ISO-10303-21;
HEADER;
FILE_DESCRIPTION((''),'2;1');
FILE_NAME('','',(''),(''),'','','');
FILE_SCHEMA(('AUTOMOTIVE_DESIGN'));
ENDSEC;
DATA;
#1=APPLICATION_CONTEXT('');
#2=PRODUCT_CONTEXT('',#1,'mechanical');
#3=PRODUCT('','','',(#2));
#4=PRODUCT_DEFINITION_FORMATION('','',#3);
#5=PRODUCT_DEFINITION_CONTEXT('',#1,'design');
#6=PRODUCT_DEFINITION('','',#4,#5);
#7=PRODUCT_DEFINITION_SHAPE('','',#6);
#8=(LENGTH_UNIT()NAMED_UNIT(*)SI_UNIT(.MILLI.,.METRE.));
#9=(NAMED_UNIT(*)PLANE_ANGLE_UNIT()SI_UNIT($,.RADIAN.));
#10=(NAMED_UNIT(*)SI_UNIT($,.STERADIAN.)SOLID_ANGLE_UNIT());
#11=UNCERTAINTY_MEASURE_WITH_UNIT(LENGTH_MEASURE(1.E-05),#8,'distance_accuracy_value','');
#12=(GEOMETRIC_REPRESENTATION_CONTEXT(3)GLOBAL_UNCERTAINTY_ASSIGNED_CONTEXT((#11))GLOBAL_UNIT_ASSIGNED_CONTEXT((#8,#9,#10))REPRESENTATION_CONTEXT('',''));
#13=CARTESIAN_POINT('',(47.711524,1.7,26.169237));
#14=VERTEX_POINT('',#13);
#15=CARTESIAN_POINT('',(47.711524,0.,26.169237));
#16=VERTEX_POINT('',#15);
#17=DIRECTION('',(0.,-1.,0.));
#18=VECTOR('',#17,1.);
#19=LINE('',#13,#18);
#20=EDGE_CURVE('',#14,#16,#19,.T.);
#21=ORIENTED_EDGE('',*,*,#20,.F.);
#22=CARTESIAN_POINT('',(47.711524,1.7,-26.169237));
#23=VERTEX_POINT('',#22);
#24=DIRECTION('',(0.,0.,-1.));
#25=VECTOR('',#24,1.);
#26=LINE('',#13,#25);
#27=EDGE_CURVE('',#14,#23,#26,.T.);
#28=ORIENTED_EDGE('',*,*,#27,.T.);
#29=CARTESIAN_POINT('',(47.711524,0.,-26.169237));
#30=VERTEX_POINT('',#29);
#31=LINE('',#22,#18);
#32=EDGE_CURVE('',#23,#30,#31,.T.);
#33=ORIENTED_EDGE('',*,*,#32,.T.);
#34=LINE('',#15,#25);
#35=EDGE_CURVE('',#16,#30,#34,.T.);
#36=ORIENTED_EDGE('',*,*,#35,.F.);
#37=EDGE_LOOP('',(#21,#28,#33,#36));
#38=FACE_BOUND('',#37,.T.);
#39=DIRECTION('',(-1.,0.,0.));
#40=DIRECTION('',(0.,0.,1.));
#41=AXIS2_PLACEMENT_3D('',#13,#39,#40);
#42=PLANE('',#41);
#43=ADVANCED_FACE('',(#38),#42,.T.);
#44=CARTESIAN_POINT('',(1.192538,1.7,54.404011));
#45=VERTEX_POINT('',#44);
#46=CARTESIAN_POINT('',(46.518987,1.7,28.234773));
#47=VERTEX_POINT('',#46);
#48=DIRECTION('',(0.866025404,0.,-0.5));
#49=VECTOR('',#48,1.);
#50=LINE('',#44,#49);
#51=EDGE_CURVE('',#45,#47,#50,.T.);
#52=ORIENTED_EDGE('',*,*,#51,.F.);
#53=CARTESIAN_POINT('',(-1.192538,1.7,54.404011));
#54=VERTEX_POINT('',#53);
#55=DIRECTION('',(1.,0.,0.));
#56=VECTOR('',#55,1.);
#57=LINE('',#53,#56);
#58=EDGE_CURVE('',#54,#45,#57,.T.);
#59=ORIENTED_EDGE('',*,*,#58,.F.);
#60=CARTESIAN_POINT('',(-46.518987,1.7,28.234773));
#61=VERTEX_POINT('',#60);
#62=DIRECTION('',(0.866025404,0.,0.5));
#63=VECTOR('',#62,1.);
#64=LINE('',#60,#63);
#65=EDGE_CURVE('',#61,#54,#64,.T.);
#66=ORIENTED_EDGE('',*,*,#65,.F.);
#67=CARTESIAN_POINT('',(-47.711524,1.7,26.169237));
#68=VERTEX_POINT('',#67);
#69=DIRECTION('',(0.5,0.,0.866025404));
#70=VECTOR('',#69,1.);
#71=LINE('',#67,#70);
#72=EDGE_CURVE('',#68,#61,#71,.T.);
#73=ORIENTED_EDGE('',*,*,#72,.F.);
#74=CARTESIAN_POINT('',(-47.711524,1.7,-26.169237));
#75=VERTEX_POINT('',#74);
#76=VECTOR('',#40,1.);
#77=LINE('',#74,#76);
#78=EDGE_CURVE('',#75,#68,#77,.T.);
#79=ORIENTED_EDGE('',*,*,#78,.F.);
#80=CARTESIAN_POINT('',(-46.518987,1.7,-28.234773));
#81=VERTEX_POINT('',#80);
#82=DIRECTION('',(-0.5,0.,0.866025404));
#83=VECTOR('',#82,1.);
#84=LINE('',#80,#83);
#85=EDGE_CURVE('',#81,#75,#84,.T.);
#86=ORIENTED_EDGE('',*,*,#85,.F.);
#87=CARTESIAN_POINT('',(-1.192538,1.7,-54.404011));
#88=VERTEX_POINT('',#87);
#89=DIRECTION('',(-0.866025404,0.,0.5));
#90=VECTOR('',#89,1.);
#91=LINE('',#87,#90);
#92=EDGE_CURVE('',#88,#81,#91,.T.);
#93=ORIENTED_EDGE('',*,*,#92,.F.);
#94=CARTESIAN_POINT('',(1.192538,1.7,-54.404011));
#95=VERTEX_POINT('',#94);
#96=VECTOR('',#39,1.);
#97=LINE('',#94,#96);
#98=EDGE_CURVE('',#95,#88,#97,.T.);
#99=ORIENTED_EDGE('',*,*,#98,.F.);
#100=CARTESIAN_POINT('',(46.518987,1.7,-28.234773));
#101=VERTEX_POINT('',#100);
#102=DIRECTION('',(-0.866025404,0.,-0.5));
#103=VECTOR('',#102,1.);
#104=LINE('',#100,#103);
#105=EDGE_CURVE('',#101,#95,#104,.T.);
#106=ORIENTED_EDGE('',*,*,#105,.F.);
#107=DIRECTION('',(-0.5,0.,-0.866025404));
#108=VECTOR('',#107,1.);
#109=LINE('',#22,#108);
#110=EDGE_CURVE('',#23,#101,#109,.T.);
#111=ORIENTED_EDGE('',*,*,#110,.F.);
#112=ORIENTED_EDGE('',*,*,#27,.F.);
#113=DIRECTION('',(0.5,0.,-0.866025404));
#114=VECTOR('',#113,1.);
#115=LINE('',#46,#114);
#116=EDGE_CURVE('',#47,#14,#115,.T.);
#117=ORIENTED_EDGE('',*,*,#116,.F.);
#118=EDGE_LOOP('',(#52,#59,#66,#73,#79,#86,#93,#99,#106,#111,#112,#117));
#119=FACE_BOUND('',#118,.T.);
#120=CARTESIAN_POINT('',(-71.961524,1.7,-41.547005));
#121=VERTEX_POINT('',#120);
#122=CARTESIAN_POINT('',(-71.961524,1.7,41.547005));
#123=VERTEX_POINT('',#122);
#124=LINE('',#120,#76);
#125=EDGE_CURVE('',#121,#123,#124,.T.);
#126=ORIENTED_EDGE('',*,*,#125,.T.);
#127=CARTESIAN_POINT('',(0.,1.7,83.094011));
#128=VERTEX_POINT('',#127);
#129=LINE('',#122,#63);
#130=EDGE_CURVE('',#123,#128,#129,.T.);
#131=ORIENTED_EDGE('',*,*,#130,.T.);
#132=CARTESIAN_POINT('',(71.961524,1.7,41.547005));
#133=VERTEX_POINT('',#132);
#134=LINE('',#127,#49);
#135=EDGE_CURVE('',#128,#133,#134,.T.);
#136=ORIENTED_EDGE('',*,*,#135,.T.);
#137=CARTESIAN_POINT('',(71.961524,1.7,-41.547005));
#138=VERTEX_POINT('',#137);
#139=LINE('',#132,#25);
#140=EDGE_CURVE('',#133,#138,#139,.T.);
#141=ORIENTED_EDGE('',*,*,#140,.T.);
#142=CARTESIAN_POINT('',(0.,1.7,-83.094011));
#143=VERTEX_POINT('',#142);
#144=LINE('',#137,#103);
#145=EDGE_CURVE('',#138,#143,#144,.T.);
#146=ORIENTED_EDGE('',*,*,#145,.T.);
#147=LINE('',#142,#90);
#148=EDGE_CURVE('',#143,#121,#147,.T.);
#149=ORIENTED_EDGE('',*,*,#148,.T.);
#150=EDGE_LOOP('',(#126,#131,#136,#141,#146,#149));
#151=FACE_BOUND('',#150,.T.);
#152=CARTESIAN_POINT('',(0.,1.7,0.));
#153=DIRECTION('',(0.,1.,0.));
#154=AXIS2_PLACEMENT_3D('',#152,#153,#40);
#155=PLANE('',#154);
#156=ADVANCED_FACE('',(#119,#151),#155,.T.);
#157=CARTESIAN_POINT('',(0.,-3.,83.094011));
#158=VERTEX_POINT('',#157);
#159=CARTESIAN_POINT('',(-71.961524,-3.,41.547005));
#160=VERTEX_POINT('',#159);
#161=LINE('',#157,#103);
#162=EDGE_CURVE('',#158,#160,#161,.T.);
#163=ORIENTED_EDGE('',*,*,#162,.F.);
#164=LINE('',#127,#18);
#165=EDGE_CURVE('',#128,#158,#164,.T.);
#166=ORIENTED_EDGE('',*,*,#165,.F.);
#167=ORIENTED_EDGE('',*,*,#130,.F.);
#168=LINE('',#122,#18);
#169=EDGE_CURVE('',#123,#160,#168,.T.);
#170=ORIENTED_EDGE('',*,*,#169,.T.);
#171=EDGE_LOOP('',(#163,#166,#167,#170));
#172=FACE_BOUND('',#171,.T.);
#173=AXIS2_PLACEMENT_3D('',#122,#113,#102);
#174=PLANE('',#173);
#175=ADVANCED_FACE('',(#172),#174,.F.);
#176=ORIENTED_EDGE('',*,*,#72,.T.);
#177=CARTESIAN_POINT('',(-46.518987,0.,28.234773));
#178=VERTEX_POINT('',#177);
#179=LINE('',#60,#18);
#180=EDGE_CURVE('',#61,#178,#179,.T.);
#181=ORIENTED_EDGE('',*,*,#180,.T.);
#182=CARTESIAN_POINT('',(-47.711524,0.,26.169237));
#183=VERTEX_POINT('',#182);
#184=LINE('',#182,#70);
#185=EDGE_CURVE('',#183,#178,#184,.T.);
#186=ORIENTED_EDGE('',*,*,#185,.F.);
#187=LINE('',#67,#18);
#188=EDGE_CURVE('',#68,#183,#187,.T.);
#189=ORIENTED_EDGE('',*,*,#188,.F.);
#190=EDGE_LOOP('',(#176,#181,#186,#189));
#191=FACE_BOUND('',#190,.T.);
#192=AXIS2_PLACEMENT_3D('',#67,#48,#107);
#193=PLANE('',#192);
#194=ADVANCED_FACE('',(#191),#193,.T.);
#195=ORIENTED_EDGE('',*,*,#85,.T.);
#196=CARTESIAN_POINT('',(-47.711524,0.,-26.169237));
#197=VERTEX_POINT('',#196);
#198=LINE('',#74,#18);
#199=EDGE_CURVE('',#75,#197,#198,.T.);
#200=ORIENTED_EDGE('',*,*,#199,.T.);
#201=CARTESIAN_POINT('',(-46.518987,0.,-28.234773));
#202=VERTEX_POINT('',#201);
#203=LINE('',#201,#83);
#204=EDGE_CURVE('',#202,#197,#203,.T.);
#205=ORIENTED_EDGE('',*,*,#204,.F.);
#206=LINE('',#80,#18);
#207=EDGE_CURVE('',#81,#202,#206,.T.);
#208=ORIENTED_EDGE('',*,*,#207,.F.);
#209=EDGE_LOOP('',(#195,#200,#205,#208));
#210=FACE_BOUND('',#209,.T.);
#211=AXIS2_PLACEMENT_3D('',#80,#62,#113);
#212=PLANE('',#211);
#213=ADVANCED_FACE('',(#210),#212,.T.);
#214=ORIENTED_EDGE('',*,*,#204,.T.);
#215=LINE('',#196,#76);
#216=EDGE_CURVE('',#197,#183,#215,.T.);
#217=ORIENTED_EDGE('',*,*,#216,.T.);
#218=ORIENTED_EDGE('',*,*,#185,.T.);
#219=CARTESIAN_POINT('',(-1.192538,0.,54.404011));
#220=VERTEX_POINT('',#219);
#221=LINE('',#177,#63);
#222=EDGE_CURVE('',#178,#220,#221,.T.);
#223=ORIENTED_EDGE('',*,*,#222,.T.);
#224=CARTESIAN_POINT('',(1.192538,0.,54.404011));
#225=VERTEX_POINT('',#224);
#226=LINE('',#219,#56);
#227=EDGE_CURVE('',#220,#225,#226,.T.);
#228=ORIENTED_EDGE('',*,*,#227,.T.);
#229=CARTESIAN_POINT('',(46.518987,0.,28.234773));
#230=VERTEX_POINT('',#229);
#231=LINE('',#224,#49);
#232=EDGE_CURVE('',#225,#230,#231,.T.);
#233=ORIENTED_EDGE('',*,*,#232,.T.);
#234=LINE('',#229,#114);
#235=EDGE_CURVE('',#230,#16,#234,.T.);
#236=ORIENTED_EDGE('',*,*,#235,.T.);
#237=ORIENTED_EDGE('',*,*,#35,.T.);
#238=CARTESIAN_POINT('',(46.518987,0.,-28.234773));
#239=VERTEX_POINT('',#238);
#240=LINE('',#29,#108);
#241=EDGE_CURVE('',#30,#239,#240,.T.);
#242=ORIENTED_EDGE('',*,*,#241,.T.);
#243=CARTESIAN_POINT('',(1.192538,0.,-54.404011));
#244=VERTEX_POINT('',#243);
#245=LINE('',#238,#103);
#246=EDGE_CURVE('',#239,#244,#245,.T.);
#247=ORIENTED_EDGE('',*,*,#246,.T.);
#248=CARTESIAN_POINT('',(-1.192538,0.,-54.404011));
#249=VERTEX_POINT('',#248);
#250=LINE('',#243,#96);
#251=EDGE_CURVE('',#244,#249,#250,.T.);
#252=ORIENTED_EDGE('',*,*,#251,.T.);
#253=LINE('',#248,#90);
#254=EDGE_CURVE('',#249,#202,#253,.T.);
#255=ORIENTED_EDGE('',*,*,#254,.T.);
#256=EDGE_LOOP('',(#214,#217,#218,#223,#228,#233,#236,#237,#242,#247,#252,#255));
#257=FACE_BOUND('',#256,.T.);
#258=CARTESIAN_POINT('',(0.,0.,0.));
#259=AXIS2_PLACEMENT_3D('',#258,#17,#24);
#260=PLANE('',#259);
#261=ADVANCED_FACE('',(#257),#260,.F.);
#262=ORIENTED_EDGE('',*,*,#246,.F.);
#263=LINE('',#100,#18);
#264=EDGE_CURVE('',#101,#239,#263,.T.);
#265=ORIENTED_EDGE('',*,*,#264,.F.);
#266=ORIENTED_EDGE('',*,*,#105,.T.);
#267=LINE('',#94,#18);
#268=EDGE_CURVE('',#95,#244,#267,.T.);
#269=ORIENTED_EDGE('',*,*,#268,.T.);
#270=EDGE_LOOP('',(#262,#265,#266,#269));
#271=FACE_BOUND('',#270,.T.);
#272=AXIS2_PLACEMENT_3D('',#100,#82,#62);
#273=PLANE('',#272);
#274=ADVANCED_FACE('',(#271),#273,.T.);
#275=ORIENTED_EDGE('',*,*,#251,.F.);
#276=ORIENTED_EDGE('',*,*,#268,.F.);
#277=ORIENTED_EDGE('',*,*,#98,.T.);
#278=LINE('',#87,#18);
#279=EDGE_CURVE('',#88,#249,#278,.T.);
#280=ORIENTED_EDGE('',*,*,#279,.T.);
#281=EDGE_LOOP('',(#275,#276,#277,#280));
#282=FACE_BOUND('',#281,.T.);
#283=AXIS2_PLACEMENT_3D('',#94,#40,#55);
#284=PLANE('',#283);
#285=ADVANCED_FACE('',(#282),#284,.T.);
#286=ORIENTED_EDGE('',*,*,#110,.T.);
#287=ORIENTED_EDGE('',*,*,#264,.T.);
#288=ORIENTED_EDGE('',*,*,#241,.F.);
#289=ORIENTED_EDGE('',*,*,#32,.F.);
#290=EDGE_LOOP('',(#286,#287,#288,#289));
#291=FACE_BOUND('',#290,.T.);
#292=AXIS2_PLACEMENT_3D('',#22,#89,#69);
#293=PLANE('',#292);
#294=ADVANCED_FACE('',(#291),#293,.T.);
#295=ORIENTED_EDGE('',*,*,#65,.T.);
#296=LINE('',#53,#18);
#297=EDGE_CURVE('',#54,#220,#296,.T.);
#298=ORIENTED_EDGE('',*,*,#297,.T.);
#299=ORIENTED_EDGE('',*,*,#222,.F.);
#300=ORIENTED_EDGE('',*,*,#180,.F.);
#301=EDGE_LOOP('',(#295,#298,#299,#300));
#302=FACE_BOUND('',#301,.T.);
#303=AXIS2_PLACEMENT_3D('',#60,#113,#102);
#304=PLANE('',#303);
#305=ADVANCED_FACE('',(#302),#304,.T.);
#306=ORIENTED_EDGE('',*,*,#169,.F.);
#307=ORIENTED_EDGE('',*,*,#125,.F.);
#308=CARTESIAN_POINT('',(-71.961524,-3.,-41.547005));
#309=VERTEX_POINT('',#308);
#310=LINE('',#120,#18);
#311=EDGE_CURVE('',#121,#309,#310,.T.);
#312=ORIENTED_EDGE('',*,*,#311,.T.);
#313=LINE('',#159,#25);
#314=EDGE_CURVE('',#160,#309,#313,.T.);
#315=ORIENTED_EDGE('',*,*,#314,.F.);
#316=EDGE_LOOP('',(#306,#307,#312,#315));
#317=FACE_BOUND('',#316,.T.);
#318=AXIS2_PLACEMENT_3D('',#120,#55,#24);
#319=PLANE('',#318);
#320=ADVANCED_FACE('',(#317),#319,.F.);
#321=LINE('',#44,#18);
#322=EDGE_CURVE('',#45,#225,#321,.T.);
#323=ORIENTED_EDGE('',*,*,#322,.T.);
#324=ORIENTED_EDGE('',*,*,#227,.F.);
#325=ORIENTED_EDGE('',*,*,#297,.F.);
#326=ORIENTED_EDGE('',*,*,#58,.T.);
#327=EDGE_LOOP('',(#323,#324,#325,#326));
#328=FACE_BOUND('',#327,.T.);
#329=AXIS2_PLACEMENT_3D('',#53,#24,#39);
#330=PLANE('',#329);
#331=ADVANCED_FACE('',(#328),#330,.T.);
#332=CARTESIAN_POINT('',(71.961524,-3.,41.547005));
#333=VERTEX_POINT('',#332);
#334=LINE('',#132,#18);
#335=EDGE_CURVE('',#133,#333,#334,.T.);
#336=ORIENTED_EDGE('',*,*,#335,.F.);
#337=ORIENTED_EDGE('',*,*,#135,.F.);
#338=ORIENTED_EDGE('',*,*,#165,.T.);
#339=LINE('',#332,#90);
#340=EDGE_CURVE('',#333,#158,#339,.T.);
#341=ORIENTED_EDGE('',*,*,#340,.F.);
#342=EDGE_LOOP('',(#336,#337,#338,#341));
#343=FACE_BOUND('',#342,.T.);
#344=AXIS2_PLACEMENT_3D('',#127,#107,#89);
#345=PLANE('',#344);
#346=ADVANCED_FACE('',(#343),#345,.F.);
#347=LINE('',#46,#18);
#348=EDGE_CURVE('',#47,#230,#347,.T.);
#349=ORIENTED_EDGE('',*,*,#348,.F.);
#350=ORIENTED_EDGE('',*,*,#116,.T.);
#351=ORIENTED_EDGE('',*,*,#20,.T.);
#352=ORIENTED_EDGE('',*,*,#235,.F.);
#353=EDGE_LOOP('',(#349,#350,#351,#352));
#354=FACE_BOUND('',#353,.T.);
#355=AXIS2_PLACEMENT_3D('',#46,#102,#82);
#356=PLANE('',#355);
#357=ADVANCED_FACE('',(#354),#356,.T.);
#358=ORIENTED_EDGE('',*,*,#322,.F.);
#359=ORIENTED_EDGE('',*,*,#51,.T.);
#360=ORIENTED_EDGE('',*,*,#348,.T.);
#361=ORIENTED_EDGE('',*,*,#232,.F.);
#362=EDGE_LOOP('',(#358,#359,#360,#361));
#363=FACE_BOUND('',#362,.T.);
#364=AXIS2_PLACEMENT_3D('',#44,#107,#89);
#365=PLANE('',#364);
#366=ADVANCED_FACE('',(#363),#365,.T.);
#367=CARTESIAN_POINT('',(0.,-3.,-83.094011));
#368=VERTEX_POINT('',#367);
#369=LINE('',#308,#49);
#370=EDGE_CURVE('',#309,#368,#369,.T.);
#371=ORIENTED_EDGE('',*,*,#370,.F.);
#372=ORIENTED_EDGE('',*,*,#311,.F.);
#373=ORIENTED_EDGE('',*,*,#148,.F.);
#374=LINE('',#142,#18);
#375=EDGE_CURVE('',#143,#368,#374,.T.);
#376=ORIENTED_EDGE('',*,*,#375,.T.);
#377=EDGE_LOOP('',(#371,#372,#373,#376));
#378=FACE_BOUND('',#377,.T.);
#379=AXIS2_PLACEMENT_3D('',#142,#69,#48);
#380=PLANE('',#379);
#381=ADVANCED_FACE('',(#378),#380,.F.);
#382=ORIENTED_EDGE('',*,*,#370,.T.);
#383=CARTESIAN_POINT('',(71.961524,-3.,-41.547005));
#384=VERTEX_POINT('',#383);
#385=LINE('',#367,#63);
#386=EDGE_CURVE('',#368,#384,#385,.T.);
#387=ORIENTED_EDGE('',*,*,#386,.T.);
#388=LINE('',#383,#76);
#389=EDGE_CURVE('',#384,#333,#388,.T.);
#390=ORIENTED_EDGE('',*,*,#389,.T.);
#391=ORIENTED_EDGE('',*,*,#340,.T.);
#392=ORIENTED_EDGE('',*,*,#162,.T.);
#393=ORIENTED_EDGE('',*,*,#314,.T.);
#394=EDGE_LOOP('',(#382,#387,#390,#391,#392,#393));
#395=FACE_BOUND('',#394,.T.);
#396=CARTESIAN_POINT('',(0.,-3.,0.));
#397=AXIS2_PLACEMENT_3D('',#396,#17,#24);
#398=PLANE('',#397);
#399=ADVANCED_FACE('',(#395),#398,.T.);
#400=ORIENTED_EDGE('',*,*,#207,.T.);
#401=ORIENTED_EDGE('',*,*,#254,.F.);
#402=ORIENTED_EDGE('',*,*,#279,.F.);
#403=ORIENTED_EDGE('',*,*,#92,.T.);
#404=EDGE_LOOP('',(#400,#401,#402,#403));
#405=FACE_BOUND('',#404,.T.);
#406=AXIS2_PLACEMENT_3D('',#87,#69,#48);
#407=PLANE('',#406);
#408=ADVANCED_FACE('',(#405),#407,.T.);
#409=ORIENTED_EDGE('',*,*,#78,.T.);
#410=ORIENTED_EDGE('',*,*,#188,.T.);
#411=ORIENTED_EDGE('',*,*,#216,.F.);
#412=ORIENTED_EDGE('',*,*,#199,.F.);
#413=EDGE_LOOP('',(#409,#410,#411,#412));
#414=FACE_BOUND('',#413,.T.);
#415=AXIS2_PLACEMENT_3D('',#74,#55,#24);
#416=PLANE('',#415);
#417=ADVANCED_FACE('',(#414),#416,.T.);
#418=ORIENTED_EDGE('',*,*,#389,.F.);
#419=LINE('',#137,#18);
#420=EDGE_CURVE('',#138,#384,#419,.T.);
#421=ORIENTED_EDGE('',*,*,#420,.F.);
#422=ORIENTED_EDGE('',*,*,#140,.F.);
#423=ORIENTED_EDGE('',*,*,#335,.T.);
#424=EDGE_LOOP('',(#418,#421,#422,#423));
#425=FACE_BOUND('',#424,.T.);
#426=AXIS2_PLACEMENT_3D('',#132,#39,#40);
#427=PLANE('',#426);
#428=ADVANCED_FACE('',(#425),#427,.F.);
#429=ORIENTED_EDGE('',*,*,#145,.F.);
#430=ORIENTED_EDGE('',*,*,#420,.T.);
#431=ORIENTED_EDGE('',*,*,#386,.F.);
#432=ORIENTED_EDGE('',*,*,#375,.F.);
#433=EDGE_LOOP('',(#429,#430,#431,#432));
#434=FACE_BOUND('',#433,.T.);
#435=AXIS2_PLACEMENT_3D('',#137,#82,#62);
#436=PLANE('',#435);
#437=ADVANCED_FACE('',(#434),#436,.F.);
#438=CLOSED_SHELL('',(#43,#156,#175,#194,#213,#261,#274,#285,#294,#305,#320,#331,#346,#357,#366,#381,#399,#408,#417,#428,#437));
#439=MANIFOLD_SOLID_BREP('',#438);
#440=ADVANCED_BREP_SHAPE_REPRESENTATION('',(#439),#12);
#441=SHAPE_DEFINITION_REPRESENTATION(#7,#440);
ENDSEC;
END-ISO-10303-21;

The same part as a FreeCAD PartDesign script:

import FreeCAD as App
import Part
import Sketcher

V = App.Vector
Q = App.Units.Quantity


def add_polygon(sketch, points):
    """Adds a closed chain of lines whose ends are joined by coincident constraints."""
    first, n = sketch.GeometryCount, len(points)
    for a, b in zip(points, points[1:] + points[:1]):
        sketch.addGeometry(Part.LineSegment(App.Vector(*a, 0), App.Vector(*b, 0)), False)
    for i in range(n):
        sketch.addConstraint(Sketcher.Constraint("Coincident", first + i, 2, first + (i + 1) % n, 1))

doc = App.newDocument("Part")
body = doc.addObject("PartDesign::Body", "Body")

# Sketch on XZ plane
sketch1 = doc.addObject("Sketcher::SketchObject", "Sketch")
body.addObject(sketch1)
sketch1.AttachmentSupport = (doc.XZ_Plane, [""])
sketch1.MapMode = "FlatFace"
add_polygon(sketch1, [(0, 83.1), (72, 41.5), (72, -41.5), (0, -83.1), (-72, -41.5), (-72, 41.5)])  # lines 0-5
add_polygon(sketch1, [(-46.5, -28.2), (-1.2, -54.4), (1.2, -54.4), (46.5, -28.2), (47.7, -26.2), (47.7, 26.2), (46.5, 28.2), (1.2, 54.4), (-1.2, 54.4), (-46.5, 28.2), (-47.7, 26.2), (-47.7, -26.2)])  # lines 6-17
sketch1.addConstraint(Sketcher.Constraint("Vertical", 1))
sketch1.addConstraint(Sketcher.Constraint("Vertical", 4))
sketch1.addConstraint(Sketcher.Constraint("Horizontal", 7))
sketch1.addConstraint(Sketcher.Constraint("Vertical", 10))
sketch1.addConstraint(Sketcher.Constraint("Horizontal", 13))
sketch1.addConstraint(Sketcher.Constraint("Vertical", 16))
sketch1.addConstraint(Sketcher.Constraint("Symmetric", 0, 2, 3, 2, -1, 1))
sketch1.addConstraint(Sketcher.Constraint("Symmetric", 2, 2, 5, 2, -1, 1))
sketch1.addConstraint(Sketcher.Constraint("Symmetric", 6, 2, 12, 2, -1, 1))
sketch1.addConstraint(Sketcher.Constraint("Symmetric", 8, 2, 14, 2, -1, 1))
sketch1.addConstraint(Sketcher.Constraint("Symmetric", 9, 2, 15, 2, -1, 1))
sketch1.addConstraint(Sketcher.Constraint("Symmetric", 11, 2, 17, 2, -1, 1))
sketch1.addConstraint(Sketcher.Constraint("Symmetric", 11, 2, 14, 2, -2))
sketch1.addConstraint(Sketcher.Constraint("PointOnObject", 2, 2, -2))
sketch1.addConstraint(Sketcher.Constraint("Parallel", 2, 5))
sketch1.addConstraint(Sketcher.Constraint("Parallel", 3, 6))
sketch1.addConstraint(Sketcher.Constraint("Parallel", 5, 8))
sketch1.addConstraint(Sketcher.Constraint("Perpendicular", 6, 9))
sketch1.addConstraint(Sketcher.Constraint("Perpendicular", 8, 11))
sketch1.addConstraint(Sketcher.Constraint("Perpendicular", 11, 14))
sketch1.addConstraint(Sketcher.Constraint("Perpendicular", 14, 17))
sketch1.addConstraint(Sketcher.Constraint("Horizontal", 1, 2, 3, 2))
sketch1.addConstraint(Sketcher.Constraint("Angle", 0, Q("-30 deg")))
sketch1.addConstraint(Sketcher.Constraint("DistanceY", 2, 2, 6, 2, 28.69))
sketch1.addConstraint(Sketcher.Constraint("DistanceX", 9, 2, 1, 2, 24.25))
sketch1.addConstraint(Sketcher.Constraint("DistanceY", 1, 2, 1, 1, 83.094011))
sketch1.addConstraint(Sketcher.Constraint("Distance", 0, 83.094011))
sketch1.addConstraint(Sketcher.Constraint("DistanceX", 7, 1, 7, 2, 2.385075))
sketch1.addConstraint(Sketcher.Constraint("DistanceY", 10, 1, 10, 2, 52.338475))
pad1 = doc.addObject("PartDesign::Pad", "Pad")
body.addObject(pad1)
pad1.Profile = sketch1
pad1.Length = 1.7
pad1.Reversed = True

# Sketch on XZ plane
sketch2 = doc.addObject("Sketcher::SketchObject", "Sketch001")
body.addObject(sketch2)
sketch2.AttachmentSupport = (doc.XZ_Plane, [""])
sketch2.MapMode = "FlatFace"
add_polygon(sketch2, [(0, 83), (-72, 42), (-72, -42), (0, -83), (72, -42), (72, 42)])  # lines 0-5
sketch2.addConstraint(Sketcher.Constraint("Vertical", 1))
sketch2.addConstraint(Sketcher.Constraint("Vertical", 4))
sketch2.addConstraint(Sketcher.Constraint("Symmetric", 0, 2, 3, 2, -1, 1))
sketch2.addConstraint(Sketcher.Constraint("Symmetric", 2, 2, 5, 2, -1, 1))
sketch2.addConstraint(Sketcher.Constraint("PointOnObject", 2, 2, -2))
sketch2.addConstraint(Sketcher.Constraint("Parallel", 2, 5))
sketch2.addConstraint(Sketcher.Constraint("Horizontal", 1, 2, 3, 2))
sketch2.addConstraint(Sketcher.Constraint("Angle", 0, Q("-150 deg")))
sketch2.addConstraint(Sketcher.Constraint("DistanceY", 1, 2, 1, 1, 83.094011))
sketch2.addConstraint(Sketcher.Constraint("Distance", 0, 83.094011))
pad2 = doc.addObject("PartDesign::Pad", "Pad001")
body.addObject(pad2)
pad2.Profile = sketch2
pad2.Length = 3

doc.recompute()
